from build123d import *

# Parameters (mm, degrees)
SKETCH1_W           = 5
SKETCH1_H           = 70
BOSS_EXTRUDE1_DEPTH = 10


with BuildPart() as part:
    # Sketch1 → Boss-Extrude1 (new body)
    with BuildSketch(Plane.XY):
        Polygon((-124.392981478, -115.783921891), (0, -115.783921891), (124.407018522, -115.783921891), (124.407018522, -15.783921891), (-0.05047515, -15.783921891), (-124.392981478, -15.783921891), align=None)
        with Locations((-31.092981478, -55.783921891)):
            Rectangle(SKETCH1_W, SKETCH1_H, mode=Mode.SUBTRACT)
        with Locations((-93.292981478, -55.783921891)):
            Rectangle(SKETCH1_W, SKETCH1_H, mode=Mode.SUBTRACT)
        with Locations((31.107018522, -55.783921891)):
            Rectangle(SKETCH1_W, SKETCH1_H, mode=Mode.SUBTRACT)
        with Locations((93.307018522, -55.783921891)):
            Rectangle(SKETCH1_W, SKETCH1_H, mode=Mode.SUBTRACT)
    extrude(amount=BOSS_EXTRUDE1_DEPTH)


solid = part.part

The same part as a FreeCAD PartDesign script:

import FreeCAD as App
import Part
import Sketcher

V = App.Vector

doc = App.newDocument("Part")
body = doc.addObject("PartDesign::Body", "Body")

sketch1 = body.newObject("Sketcher::SketchObject", "Sketch")
sketch1.AttachmentSupport = (doc.getObject("XY_Plane"), [""])
sketch1.MapMode = "FlatFace"
sketch1.addGeometry(Part.LineSegment(V(-124.4, -115.8, 0), V(124.4, -115.8, 0)), False)
sketch1.addGeometry(Part.LineSegment(V(124.4, -115.8, 0), V(124.4, -15.8, 0)), False)
sketch1.addGeometry(Part.LineSegment(V(124.4, -15.8, 0), V(-124.4, -15.8, 0)), False)
sketch1.addGeometry(Part.LineSegment(V(-124.4, -15.8, 0), V(-124.4, -115.8, 0)), False)
sketch1.addGeometry(Part.LineSegment(V(-90.8, -90.8, 0), V(-95.8, -90.8, 0)), False)
sketch1.addGeometry(Part.LineSegment(V(-95.8, -90.8, 0), V(-95.8, -20.8, 0)), False)
sketch1.addGeometry(Part.LineSegment(V(-95.8, -20.8, 0), V(-90.8, -20.8, 0)), False)
sketch1.addGeometry(Part.LineSegment(V(-90.8, -20.8, 0), V(-90.8, -90.8, 0)), False)
sketch1.addGeometry(Part.LineSegment(V(-28.6, -90.8, 0), V(-33.6, -90.8, 0)), False)
sketch1.addGeometry(Part.LineSegment(V(-33.6, -90.8, 0), V(-33.6, -20.8, 0)), False)
sketch1.addGeometry(Part.LineSegment(V(-33.6, -20.8, 0), V(-28.6, -20.8, 0)), False)
sketch1.addGeometry(Part.LineSegment(V(-28.6, -20.8, 0), V(-28.6, -90.8, 0)), False)
sketch1.addGeometry(Part.LineSegment(V(33.6, -90.8, 0), V(28.6, -90.8, 0)), False)
sketch1.addGeometry(Part.LineSegment(V(28.6, -90.8, 0), V(28.6, -20.8, 0)), False)
sketch1.addGeometry(Part.LineSegment(V(28.6, -20.8, 0), V(33.6, -20.8, 0)), False)
sketch1.addGeometry(Part.LineSegment(V(33.6, -20.8, 0), V(33.6, -90.8, 0)), False)
sketch1.addGeometry(Part.LineSegment(V(95.8, -90.8, 0), V(90.8, -90.8, 0)), False)
sketch1.addGeometry(Part.LineSegment(V(90.8, -90.8, 0), V(90.8, -20.8, 0)), False)
sketch1.addGeometry(Part.LineSegment(V(90.8, -20.8, 0), V(95.8, -20.8, 0)), False)
sketch1.addGeometry(Part.LineSegment(V(95.8, -20.8, 0), V(95.8, -90.8, 0)), False)
sketch1.addConstraint(Sketcher.Constraint("Coincident", 0, 2, 1, 1))
sketch1.addConstraint(Sketcher.Constraint("Coincident", 1, 2, 2, 1))
sketch1.addConstraint(Sketcher.Constraint("Coincident", 2, 2, 3, 1))
sketch1.addConstraint(Sketcher.Constraint("Coincident", 3, 2, 0, 1))
sketch1.addConstraint(Sketcher.Constraint("Coincident", 4, 2, 5, 1))
sketch1.addConstraint(Sketcher.Constraint("Coincident", 5, 2, 6, 1))
sketch1.addConstraint(Sketcher.Constraint("Coincident", 6, 2, 7, 1))
sketch1.addConstraint(Sketcher.Constraint("Coincident", 7, 2, 4, 1))
sketch1.addConstraint(Sketcher.Constraint("Coincident", 8, 2, 9, 1))
sketch1.addConstraint(Sketcher.Constraint("Coincident", 9, 2, 10, 1))
sketch1.addConstraint(Sketcher.Constraint("Coincident", 10, 2, 11, 1))
sketch1.addConstraint(Sketcher.Constraint("Coincident", 11, 2, 8, 1))
sketch1.addConstraint(Sketcher.Constraint("Coincident", 12, 2, 13, 1))
sketch1.addConstraint(Sketcher.Constraint("Coincident", 13, 2, 14, 1))
sketch1.addConstraint(Sketcher.Constraint("Coincident", 14, 2, 15, 1))
sketch1.addConstraint(Sketcher.Constraint("Coincident", 15, 2, 12, 1))
sketch1.addConstraint(Sketcher.Constraint("Coincident", 16, 2, 17, 1))
sketch1.addConstraint(Sketcher.Constraint("Coincident", 17, 2, 18, 1))
sketch1.addConstraint(Sketcher.Constraint("Coincident", 18, 2, 19, 1))
sketch1.addConstraint(Sketcher.Constraint("Coincident", 19, 2, 16, 1))
sketch1.addConstraint(Sketcher.Constraint("Horizontal", 0))
sketch1.addConstraint(Sketcher.Constraint("Vertical", 1))
sketch1.addConstraint(Sketcher.Constraint("Horizontal", 2))
sketch1.addConstraint(Sketcher.Constraint("Vertical", 3))
sketch1.addConstraint(Sketcher.Constraint("Horizontal", 4))
sketch1.addConstraint(Sketcher.Constraint("Vertical", 5))
sketch1.addConstraint(Sketcher.Constraint("Horizontal", 6))
sketch1.addConstraint(Sketcher.Constraint("Vertical", 7))
sketch1.addConstraint(Sketcher.Constraint("Horizontal", 8))
sketch1.addConstraint(Sketcher.Constraint("Vertical", 9))
sketch1.addConstraint(Sketcher.Constraint("Horizontal", 10))
sketch1.addConstraint(Sketcher.Constraint("Vertical", 11))
sketch1.addConstraint(Sketcher.Constraint("Horizontal", 12))
sketch1.addConstraint(Sketcher.Constraint("Vertical", 13))
sketch1.addConstraint(Sketcher.Constraint("Horizontal", 14))
sketch1.addConstraint(Sketcher.Constraint("Vertical", 15))
sketch1.addConstraint(Sketcher.Constraint("Horizontal", 16))
sketch1.addConstraint(Sketcher.Constraint("Vertical", 17))
sketch1.addConstraint(Sketcher.Constraint("Horizontal", 18))
sketch1.addConstraint(Sketcher.Constraint("Vertical", 19))
sketch1.addConstraint(Sketcher.Constraint("Horizontal", 7, 2, 8, 2))
sketch1.addConstraint(Sketcher.Constraint("Horizontal", 6, 2, 9, 2))
sketch1.addConstraint(Sketcher.Constraint("Horizontal", 11, 2, 12, 2))
sketch1.addConstraint(Sketcher.Constraint("Horizontal", 10, 2, 13, 2))
sketch1.addConstraint(Sketcher.Constraint("Horizontal", 15, 2, 16, 2))
sketch1.addConstraint(Sketcher.Constraint("Horizontal", 14, 2, 17, 2))
sketch1.addConstraint(Sketcher.Constraint("Equal", 6, 8))
sketch1.addConstraint(Sketcher.Constraint("Equal", 10, 12))
sketch1.addConstraint(Sketcher.Constraint("Equal", 14, 16))
sketch1.addConstraint(Sketcher.Constraint("DistanceX", 4, 2, 4, 1, 5.0))
sketch1.addConstraint(Sketcher.Constraint("DistanceY", 1, 1, 1, 2, 100.0))
sketch1.addConstraint(Sketcher.Constraint("DistanceY", 5, 1, 5, 2, 70.0))
sketch1.addConstraint(Sketcher.Constraint("DistanceX", 0, 1, 0, 2, 248.8))
sketch1.addConstraint(Sketcher.Constraint("DistanceY", 3, 2, 4, 2, 25.0))
sketch1.addConstraint(Sketcher.Constraint("DistanceX", 3, 2, 4, 2, 28.6))
sketch1.addConstraint(Sketcher.Constraint("DistanceX", 7, 2, 8, 2, 57.2))
sketch1.addConstraint(Sketcher.Constraint("DistanceX", 11, 2, 12, 2, 57.2))
sketch1.addConstraint(Sketcher.Constraint("DistanceX", 16, 2, 0, 2, 33.6))
sketch1.addConstraint(Sketcher.Constraint("DistanceX", -1, 1, 0, 2, 124.407019))
sketch1.addConstraint(Sketcher.Constraint("DistanceY", 0, 2, -1, 1, 115.783922))
pad1 = body.newObject("PartDesign::Pad", "Pad")
pad1.Profile = sketch1
pad1.Length = 10

doc.recompute()
